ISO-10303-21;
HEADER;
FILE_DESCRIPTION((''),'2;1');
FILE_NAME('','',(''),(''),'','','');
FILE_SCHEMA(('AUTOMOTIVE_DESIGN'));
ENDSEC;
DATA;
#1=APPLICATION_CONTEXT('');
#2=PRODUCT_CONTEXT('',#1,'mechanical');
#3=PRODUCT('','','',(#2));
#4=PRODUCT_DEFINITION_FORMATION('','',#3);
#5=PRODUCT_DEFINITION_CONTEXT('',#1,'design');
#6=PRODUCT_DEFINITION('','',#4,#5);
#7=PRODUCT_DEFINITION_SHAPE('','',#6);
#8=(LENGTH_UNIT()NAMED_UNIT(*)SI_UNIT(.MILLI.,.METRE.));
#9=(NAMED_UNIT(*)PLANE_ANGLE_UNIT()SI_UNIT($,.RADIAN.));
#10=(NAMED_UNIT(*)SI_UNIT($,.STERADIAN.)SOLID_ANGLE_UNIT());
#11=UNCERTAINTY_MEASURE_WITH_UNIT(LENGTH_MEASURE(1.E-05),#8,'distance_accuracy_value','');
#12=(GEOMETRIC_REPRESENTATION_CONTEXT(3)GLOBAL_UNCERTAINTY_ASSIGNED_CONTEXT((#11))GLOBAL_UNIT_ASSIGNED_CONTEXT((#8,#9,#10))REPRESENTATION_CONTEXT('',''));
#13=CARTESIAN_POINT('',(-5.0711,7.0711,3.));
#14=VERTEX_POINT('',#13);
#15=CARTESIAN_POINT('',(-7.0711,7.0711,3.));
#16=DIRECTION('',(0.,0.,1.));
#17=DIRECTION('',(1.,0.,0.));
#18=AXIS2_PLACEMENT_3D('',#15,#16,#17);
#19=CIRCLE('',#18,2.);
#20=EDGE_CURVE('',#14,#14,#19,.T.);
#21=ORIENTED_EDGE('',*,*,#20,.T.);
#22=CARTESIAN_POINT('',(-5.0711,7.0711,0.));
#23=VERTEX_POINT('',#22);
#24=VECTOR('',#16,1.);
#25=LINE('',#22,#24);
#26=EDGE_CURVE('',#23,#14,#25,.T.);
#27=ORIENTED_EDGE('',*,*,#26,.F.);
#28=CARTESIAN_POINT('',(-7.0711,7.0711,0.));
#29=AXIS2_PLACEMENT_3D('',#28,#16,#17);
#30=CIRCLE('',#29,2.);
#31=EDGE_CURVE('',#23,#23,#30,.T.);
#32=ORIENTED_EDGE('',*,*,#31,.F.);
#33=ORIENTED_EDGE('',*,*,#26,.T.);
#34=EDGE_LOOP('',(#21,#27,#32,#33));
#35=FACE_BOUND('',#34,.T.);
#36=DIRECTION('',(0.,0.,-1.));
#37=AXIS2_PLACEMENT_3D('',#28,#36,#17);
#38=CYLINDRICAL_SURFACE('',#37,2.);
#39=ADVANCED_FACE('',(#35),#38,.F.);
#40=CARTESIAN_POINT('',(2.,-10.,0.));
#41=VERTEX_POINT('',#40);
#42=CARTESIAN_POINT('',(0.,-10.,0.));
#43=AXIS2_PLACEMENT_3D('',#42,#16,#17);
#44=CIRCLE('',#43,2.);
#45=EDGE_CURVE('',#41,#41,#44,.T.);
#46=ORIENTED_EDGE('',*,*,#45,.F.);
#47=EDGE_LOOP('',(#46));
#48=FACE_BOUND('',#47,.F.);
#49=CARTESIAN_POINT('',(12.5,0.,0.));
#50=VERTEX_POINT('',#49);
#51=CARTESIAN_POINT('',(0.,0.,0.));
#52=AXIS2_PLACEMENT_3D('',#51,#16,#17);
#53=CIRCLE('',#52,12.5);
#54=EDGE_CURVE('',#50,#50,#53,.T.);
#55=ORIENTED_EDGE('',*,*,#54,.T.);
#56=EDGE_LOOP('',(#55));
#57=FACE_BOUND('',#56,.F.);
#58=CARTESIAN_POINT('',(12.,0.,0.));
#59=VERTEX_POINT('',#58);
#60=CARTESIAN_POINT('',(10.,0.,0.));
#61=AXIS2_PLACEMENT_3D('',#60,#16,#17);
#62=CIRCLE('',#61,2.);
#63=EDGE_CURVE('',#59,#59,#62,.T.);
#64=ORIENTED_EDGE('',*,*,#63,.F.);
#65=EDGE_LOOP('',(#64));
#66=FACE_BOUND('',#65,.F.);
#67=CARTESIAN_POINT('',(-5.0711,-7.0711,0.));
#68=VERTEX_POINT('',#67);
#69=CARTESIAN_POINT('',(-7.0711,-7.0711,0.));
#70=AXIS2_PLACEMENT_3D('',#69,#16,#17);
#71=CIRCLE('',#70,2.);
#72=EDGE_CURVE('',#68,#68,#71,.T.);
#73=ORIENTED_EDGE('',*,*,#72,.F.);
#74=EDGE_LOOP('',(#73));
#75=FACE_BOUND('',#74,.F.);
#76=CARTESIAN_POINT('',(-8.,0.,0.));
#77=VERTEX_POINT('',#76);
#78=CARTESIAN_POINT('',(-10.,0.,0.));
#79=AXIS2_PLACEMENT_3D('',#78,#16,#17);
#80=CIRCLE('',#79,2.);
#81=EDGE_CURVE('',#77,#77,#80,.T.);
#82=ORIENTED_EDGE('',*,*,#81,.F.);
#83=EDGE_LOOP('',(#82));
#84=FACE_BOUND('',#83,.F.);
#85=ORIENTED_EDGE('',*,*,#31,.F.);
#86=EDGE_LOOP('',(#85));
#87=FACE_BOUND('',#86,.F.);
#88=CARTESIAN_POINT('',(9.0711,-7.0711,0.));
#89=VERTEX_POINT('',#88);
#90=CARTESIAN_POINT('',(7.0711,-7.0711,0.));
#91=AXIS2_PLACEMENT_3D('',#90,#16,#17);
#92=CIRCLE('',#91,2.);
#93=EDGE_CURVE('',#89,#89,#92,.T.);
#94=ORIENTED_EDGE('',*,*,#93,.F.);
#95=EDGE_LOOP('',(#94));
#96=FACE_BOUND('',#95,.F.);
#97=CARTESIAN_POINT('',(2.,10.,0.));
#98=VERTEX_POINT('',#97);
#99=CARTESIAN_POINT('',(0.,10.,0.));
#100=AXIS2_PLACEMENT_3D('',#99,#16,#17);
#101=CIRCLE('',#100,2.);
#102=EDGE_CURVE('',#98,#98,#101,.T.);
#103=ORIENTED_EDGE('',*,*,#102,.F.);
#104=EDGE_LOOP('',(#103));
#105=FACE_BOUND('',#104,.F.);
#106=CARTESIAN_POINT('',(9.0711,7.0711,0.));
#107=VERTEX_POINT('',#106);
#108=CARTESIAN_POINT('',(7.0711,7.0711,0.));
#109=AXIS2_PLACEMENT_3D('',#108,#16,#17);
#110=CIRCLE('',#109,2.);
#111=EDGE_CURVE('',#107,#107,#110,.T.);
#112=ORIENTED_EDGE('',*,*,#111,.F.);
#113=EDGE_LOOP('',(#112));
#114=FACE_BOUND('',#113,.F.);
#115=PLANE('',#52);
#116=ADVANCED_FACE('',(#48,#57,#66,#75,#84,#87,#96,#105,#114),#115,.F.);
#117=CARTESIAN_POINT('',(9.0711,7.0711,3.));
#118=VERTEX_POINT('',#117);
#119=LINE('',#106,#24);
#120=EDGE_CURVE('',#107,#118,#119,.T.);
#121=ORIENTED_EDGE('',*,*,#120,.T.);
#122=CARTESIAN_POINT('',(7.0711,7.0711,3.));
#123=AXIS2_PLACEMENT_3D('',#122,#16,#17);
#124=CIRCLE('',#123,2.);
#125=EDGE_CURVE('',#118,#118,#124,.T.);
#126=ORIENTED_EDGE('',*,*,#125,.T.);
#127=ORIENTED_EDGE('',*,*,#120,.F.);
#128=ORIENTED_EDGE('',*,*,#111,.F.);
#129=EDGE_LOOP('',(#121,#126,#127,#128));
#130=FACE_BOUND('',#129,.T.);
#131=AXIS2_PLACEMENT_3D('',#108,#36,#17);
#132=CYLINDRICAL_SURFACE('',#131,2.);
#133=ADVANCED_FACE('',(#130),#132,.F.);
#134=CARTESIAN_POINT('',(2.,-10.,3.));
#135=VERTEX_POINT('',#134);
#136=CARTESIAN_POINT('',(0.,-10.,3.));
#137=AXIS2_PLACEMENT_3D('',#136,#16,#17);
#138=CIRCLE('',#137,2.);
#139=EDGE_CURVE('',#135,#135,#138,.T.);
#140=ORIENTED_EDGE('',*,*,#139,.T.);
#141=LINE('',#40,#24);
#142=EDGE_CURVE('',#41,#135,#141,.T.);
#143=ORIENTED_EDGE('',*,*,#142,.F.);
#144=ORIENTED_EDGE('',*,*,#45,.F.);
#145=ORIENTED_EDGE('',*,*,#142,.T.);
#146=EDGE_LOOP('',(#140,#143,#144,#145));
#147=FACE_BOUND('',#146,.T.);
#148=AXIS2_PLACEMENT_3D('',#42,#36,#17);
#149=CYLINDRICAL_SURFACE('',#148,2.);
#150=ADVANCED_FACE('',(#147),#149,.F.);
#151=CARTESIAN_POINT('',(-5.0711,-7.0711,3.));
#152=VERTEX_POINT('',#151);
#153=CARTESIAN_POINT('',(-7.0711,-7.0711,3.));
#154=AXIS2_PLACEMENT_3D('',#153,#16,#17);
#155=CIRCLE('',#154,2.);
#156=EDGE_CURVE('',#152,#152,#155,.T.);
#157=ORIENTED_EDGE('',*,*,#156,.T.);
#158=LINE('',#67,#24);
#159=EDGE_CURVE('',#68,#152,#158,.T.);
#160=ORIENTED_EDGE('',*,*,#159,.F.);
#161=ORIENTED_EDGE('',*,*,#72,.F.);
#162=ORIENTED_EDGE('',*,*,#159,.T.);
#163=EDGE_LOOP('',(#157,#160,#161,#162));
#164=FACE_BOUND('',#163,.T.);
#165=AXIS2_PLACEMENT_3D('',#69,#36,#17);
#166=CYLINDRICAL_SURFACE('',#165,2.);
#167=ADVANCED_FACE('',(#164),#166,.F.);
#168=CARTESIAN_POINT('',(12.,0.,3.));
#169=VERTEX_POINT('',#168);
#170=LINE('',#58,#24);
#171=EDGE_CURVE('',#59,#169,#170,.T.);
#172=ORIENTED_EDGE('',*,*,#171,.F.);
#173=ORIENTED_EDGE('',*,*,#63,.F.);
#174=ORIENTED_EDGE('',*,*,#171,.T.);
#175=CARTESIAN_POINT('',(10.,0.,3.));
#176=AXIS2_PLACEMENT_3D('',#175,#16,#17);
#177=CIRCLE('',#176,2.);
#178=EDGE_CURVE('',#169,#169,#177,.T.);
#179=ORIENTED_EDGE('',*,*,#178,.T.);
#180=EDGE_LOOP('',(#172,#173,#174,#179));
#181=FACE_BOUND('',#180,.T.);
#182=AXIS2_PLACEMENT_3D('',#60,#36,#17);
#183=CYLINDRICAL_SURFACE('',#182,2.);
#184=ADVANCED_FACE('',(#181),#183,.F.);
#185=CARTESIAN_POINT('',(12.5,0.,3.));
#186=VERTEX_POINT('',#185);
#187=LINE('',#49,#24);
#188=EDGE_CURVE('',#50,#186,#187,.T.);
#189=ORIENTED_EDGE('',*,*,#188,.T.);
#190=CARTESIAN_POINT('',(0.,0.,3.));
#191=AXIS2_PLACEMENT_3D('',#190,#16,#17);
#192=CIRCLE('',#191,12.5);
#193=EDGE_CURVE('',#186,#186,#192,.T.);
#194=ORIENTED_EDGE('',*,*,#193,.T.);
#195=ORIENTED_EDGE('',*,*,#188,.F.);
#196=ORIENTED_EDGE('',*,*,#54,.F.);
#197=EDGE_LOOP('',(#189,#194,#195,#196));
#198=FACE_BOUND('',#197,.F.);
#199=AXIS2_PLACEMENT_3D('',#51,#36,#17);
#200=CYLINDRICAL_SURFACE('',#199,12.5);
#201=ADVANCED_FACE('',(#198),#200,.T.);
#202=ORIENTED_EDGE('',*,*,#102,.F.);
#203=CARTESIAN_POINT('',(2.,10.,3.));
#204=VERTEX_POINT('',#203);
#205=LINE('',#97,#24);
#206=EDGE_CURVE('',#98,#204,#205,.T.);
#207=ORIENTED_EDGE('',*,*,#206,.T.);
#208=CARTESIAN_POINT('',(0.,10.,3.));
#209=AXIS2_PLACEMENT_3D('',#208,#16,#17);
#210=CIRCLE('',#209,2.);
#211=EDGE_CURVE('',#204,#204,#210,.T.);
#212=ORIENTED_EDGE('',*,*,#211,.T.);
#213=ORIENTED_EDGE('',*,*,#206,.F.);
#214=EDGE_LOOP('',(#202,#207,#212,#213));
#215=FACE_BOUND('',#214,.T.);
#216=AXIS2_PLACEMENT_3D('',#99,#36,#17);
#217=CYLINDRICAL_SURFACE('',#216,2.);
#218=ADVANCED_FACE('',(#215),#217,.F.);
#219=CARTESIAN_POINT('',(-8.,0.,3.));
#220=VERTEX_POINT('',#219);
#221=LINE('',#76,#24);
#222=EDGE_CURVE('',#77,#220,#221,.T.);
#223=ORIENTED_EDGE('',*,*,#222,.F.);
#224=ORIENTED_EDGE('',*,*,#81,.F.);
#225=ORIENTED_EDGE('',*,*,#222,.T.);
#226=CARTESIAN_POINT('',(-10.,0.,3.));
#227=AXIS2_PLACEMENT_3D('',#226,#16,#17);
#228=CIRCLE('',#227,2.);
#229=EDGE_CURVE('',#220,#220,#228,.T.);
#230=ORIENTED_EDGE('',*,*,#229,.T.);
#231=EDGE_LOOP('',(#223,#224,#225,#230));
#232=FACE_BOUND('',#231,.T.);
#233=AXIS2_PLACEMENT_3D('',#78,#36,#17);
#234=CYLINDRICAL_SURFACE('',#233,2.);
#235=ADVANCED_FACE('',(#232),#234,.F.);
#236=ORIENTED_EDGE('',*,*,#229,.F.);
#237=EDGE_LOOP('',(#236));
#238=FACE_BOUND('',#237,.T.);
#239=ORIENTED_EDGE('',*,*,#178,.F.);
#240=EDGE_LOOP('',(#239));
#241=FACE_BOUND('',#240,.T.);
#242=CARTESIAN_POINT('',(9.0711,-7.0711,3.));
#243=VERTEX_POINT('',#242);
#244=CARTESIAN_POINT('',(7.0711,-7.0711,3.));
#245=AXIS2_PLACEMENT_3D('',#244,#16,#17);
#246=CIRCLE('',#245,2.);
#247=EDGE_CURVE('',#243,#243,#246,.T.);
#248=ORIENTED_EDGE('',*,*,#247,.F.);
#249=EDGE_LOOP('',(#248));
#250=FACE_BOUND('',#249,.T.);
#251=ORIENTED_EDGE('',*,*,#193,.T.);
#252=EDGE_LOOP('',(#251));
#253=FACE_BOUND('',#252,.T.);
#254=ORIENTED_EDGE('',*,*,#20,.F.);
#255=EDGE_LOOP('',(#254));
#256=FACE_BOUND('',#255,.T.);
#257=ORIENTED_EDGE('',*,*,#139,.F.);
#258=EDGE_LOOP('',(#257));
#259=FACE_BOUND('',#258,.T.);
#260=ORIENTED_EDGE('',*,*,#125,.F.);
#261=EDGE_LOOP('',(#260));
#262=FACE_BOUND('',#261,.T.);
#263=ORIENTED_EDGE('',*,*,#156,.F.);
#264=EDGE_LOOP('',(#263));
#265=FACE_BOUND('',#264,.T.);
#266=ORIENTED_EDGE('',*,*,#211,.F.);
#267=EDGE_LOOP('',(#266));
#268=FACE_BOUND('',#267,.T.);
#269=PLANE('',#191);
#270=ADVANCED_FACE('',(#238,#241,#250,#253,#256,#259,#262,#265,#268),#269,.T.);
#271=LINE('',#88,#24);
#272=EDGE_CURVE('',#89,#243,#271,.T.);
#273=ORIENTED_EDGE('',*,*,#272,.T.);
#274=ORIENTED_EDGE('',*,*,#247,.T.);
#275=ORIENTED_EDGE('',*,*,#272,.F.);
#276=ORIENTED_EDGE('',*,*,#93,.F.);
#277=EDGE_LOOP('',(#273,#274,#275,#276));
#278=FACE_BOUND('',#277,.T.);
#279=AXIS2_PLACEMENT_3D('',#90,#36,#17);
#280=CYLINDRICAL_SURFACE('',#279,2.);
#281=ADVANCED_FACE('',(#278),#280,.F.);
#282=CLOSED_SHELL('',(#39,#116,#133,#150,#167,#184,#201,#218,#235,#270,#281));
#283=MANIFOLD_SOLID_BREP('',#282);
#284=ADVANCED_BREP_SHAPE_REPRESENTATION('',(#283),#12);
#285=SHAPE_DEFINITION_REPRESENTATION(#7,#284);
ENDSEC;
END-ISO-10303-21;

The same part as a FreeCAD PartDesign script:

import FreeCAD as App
import Part
import Sketcher
Q = App.Units.Quantity

doc = App.newDocument("Part")
body = doc.addObject("PartDesign::Body", "Body")

sketch1 = body.newObject("Sketcher::SketchObject", "Sketch")
sketch1.AttachmentSupport = (doc.getObject("XY_Plane"), [""])
sketch1.MapMode = "FlatFace"
sketch1.addGeometry([
    Part.Circle(App.Vector(0, 0, 0), App.Vector(0, 0, 1), 12.5),
    Part.Circle(App.Vector(-7.0711, -7.0711, 0), App.Vector(0, 0, 1), 2),
    Part.Circle(App.Vector(0, -10, 0), App.Vector(0, 0, 1), 2),
    Part.Circle(App.Vector(7.0711, -7.0711, 0), App.Vector(0, 0, 1), 2),
    Part.Circle(App.Vector(-10, 0, 0), App.Vector(0, 0, 1), 2),
    Part.Circle(App.Vector(-7.0711, 7.0711, 0), App.Vector(0, 0, 1), 2),
    Part.Circle(App.Vector(10, 0, 0), App.Vector(0, 0, 1), 2),
    Part.Circle(App.Vector(0, 10, 0), App.Vector(0, 0, 1), 2),
    Part.Circle(App.Vector(7.0711, 7.0711, 0), App.Vector(0, 0, 1), 2),
], False)
sketch1.addConstraint([
    Sketcher.Constraint("Coincident", 0, 3, -1, 1),
    Sketcher.Constraint("Equal", 1, 2),
    Sketcher.Constraint("Equal", 2, 3),
    Sketcher.Constraint("Equal", 3, 4),
    Sketcher.Constraint("Equal", 4, 5),
    Sketcher.Constraint("Equal", 5, 6),
    Sketcher.Constraint("Equal", 6, 7),
    Sketcher.Constraint("Equal", 7, 8),
    Sketcher.Constraint("Symmetric", 3, 3, 5, 3, -1, 1),
    Sketcher.Constraint("Symmetric", 4, 3, 6, 3, -1, 1),
    Sketcher.Constraint("Symmetric", 2, 3, 7, 3, -1, 1),
    Sketcher.Constraint("Symmetric", 1, 3, 8, 3, -1, 1),
    Sketcher.Constraint("Symmetric", 1, 3, 3, 3, -2),
    Sketcher.Constraint("PointOnObject", 2, 3, -2),
    Sketcher.Constraint("PointOnObject", 4, 3, -1),
    Sketcher.Constraint("Diameter", 1, Q("4 mm")),
    Sketcher.Constraint("Diameter", 0, Q("25 mm")),
    Sketcher.Constraint("DistanceY", 2, 3, -1, 1, Q("10 mm")),
    Sketcher.Constraint("DistanceX", 4, 3, -1, 1, Q("10 mm")),
    Sketcher.Constraint("DistanceX", 1, 3, -1, 1, Q("7.071 mm")),
    Sketcher.Constraint("DistanceY", 1, 3, -1, 1, Q("7.071 mm")),
])
pad1 = body.newObject("PartDesign::Pad", "Pad")
pad1.Profile = sketch1
pad1.Length = 3

doc.recompute()
